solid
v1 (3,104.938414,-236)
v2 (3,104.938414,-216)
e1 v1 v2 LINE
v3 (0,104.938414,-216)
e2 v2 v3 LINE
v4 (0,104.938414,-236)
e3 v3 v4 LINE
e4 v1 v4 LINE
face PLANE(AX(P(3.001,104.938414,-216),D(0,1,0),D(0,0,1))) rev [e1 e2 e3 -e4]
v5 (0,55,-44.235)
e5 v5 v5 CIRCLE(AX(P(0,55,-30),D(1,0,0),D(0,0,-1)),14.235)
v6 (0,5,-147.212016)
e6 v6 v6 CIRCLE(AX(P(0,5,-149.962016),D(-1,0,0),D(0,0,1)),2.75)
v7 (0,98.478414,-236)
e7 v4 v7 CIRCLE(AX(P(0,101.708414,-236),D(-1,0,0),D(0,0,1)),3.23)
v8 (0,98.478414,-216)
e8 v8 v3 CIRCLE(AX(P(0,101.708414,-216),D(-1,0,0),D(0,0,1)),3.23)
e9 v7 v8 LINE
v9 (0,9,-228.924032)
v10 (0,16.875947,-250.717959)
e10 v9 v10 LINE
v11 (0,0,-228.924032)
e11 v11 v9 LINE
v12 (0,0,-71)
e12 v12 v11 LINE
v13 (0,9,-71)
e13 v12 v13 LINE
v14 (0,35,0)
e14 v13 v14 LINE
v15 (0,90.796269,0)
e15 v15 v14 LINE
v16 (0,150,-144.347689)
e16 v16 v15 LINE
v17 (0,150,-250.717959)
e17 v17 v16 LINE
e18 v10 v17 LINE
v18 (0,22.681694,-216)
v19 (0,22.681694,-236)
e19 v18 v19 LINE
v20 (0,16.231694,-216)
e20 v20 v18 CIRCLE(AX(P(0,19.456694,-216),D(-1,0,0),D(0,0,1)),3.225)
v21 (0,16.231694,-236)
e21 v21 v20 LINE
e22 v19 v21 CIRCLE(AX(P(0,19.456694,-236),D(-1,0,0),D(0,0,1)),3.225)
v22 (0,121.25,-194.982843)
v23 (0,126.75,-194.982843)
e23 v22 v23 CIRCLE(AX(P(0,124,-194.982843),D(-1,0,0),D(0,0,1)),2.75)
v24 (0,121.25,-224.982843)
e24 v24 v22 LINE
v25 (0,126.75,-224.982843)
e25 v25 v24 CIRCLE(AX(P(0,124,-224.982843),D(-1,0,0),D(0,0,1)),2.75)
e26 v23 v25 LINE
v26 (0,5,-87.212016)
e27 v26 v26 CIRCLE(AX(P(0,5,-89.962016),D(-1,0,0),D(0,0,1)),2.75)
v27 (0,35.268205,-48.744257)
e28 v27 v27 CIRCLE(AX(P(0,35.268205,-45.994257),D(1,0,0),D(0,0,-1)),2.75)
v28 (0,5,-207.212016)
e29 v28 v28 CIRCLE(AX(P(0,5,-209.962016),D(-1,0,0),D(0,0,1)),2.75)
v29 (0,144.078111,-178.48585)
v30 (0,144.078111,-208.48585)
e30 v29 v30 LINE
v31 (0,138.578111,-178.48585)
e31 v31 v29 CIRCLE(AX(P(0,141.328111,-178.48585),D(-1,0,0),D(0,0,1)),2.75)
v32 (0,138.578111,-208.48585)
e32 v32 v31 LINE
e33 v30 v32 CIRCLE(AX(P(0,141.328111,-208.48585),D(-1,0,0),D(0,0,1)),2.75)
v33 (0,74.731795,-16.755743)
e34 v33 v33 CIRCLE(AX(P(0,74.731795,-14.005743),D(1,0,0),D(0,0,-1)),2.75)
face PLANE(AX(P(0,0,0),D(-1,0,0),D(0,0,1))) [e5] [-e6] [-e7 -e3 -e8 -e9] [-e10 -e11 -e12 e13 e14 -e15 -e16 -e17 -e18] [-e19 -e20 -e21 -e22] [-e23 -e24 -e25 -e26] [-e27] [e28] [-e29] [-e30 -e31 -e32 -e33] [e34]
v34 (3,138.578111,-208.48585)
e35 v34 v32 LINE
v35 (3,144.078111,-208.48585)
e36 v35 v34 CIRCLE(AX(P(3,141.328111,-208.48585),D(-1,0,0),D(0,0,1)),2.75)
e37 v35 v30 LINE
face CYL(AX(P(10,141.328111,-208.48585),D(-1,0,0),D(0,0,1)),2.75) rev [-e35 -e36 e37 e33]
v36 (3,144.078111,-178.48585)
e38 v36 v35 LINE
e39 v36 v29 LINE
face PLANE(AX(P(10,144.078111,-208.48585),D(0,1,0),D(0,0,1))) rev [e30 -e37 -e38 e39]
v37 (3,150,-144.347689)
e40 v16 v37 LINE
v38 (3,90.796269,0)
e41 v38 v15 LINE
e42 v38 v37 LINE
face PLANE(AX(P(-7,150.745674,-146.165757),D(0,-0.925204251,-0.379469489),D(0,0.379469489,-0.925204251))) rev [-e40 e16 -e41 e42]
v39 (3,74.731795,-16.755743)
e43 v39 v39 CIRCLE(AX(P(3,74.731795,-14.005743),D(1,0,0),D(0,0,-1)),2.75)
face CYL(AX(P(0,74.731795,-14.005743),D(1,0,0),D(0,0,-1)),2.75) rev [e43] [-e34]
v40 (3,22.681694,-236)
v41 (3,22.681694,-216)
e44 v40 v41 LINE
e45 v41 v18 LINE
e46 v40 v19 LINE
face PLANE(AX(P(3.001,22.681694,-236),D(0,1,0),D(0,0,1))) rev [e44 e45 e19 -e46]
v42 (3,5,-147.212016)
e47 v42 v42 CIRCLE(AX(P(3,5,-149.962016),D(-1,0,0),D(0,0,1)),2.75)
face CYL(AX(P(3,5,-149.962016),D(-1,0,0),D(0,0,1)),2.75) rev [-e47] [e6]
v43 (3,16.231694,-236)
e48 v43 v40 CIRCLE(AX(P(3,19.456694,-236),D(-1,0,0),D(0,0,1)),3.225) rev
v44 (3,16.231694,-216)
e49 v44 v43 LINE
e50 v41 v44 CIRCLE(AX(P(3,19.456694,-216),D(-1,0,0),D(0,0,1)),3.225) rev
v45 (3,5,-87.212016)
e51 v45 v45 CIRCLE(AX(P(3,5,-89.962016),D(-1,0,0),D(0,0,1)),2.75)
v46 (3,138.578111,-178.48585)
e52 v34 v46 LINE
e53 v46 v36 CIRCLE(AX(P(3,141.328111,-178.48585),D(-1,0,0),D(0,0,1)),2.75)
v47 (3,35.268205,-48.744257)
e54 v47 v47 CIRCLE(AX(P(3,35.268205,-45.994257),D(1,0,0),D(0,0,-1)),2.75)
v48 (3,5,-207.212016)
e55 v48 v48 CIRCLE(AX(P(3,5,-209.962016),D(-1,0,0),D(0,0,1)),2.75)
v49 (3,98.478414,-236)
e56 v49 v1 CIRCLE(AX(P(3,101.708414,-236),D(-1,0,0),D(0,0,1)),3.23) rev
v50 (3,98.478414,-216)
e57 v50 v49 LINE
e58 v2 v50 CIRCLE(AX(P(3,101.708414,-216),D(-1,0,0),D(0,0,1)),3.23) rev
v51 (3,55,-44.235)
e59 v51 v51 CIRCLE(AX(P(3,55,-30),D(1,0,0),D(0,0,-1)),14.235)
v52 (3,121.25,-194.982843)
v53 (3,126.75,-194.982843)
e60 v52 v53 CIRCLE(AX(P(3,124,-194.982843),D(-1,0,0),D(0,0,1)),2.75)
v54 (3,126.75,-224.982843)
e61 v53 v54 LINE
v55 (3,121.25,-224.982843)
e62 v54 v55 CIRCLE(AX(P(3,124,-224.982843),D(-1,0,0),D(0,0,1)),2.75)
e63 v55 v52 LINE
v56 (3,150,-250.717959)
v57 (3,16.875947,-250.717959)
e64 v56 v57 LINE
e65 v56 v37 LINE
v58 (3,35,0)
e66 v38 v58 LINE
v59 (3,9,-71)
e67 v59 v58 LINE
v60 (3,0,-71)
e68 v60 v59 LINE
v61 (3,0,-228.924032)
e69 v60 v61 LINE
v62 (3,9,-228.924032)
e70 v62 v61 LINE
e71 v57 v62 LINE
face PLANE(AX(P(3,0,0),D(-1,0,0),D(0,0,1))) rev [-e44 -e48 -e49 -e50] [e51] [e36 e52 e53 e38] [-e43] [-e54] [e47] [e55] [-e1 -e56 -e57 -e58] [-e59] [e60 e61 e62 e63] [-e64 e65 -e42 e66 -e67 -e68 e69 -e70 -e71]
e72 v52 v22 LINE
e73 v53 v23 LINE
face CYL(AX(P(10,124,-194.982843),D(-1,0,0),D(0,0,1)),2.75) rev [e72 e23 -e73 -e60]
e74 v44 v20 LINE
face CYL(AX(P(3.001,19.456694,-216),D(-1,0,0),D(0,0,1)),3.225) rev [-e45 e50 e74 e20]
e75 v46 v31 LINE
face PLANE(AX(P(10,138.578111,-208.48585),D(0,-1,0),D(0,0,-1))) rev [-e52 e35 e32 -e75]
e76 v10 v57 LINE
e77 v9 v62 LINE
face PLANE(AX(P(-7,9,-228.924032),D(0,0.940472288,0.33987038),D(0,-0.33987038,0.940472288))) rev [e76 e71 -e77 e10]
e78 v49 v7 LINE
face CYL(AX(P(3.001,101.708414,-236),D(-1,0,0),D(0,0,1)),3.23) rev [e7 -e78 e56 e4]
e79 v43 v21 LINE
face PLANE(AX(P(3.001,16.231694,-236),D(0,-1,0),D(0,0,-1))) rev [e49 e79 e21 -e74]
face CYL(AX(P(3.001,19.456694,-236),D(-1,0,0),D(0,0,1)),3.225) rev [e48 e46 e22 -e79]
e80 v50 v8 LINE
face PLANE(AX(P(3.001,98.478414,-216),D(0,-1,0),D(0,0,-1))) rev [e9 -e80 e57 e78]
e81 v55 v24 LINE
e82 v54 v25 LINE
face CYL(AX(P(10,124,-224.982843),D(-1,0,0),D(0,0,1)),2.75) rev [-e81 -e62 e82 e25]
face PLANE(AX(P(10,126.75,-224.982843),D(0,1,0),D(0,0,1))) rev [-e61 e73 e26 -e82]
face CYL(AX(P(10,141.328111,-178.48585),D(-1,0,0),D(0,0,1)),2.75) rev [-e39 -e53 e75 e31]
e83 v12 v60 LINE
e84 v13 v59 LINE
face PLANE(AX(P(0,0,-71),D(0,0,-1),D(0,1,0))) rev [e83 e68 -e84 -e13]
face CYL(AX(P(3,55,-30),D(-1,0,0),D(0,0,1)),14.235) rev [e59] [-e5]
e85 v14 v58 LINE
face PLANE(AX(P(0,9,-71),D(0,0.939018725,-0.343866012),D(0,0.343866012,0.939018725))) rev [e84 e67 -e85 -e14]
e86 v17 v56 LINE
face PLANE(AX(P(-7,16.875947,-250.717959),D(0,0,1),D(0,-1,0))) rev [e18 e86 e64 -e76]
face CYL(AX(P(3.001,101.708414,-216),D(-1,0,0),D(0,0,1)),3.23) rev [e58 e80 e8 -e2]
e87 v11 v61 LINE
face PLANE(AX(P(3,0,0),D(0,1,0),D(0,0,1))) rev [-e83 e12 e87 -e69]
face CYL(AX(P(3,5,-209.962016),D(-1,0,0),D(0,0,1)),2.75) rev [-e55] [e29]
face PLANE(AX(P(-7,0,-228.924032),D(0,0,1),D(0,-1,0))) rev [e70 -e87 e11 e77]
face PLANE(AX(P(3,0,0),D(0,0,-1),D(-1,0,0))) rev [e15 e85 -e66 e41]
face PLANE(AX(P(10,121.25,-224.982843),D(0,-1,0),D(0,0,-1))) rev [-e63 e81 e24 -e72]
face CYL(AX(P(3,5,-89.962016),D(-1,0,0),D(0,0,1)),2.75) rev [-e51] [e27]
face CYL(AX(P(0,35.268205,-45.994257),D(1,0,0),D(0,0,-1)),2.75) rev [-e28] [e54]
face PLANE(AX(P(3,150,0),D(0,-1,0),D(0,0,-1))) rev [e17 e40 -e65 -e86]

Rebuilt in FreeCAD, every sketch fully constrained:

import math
import FreeCAD as App
import Part
import Sketcher

V = App.Vector

doc = App.newDocument("Part")
body = doc.addObject("PartDesign::Body", "Body")

sketch1 = body.newObject("Sketcher::SketchObject", "Sketch")
sketch1.AttachmentSupport = (doc.getObject("YZ_Plane"), [""])
sketch1.MapMode = "FlatFace"
sketch1.addGeometry(Part.LineSegment(V(150, 0, 0), V(0, 0, 0)), False)
sketch1.addGeometry(Part.LineSegment(V(0, 0, 0), V(0, -300, 0)), False)
sketch1.addGeometry(Part.LineSegment(V(0, -300, 0), V(150, -300, 0)), False)
sketch1.addGeometry(Part.LineSegment(V(150, -300, 0), V(150, 0, 0)), False)
sketch1.addGeometry(Part.Circle(V(55, -30, 0), V(0, 0, 1), 14.235), False)
sketch1.addConstraint(Sketcher.Constraint("Coincident", 0, 2, 1, 1))
sketch1.addConstraint(Sketcher.Constraint("Coincident", 1, 2, 2, 1))
sketch1.addConstraint(Sketcher.Constraint("Coincident", 2, 2, 3, 1))
sketch1.addConstraint(Sketcher.Constraint("Coincident", 3, 2, 0, 1))
sketch1.addConstraint(Sketcher.Constraint("Horizontal", 0))
sketch1.addConstraint(Sketcher.Constraint("Vertical", 1))
sketch1.addConstraint(Sketcher.Constraint("Horizontal", 2))
sketch1.addConstraint(Sketcher.Constraint("Vertical", 3))
sketch1.addConstraint(Sketcher.Constraint("Coincident", 0, 2, -1, 1))
sketch1.addConstraint(Sketcher.Constraint("Diameter", 4, 28.47))
sketch1.addConstraint(Sketcher.Constraint("DistanceX", 0, 2, 0, 1, 150.0))
sketch1.addConstraint(Sketcher.Constraint("DistanceY", 1, 2, 1, 1, 300.0))
sketch1.addConstraint(Sketcher.Constraint("DistanceX", -1, 1, 4, 3, 55.0))
sketch1.addConstraint(Sketcher.Constraint("DistanceY", 4, 3, -1, 1, 30.0))
pad1 = body.newObject("PartDesign::Pad", "Pad")
pad1.Profile = sketch1
pad1.Length = 3

sketch2 = body.newObject("Sketcher::SketchObject", "Sketch001")
sketch2.AttachmentSupport = (doc.getObject("YZ_Plane"), [""])
sketch2.MapMode = "FlatFace"
sketch2.addGeometry(Part.Circle(V(110, -10, 0), V(0, 0, 1), 3.225), False)
sketch2.addConstraint(Sketcher.Constraint("Diameter", 0, 6.45))
sketch2.addConstraint(Sketcher.Constraint("DistanceX", -1, 1, 0, 3, 110.0))
sketch2.addConstraint(Sketcher.Constraint("DistanceY", 0, 3, -1, 1, 10.0))
pocket1 = body.newObject("PartDesign::Pocket", "Pocket")
pocket1.Profile = sketch2
pocket1.Type = "UpToFirst"
pocket1.Reversed = True

sketch3 = body.newObject("Sketcher::SketchObject", "Sketch002")
sketch3.AttachmentSupport = (doc.getObject("YZ_Plane"), [""])
sketch3.MapMode = "FlatFace"
sketch3.addGeometry(Part.LineSegment(V(98.478414, -236, 0), V(98.478414, -216, 0)), False)
sketch3.addGeometry(Part.ArcOfCircle(Part.Circle(V(101.708414, -216, 0), V(0, 0, 1), 3.23), math.radians(0), math.radians(180)), False)
sketch3.addGeometry(Part.LineSegment(V(104.938414, -216, 0), V(104.938414, -236, 0)), False)
sketch3.addGeometry(Part.ArcOfCircle(Part.Circle(V(101.708414, -236, 0), V(0, 0, 1), 3.23), math.radians(180), math.radians(360)), False)
sketch3.addConstraint(Sketcher.Constraint("Tangent", 0, 2, 1, 2))
sketch3.addConstraint(Sketcher.Constraint("Tangent", 1, 1, 2, 1))
sketch3.addConstraint(Sketcher.Constraint("Tangent", 2, 2, 3, 2))
sketch3.addConstraint(Sketcher.Constraint("Tangent", 3, 1, 0, 1))
sketch3.addConstraint(Sketcher.Constraint("Vertical", 0))
sketch3.addConstraint(Sketcher.Constraint("Vertical", 2))
sketch3.addConstraint(Sketcher.Constraint("DistanceY", 0, 1, 0, 2, 20.0))
sketch3.addConstraint(Sketcher.Constraint("Radius", 1, 3.23))
sketch3.addConstraint(Sketcher.Constraint("DistanceY", 1, 3, -1, 1, 216.0))
sketch3.addConstraint(Sketcher.Constraint("DistanceX", -1, 1, 1, 3, 101.708414))
pocket2 = body.newObject("PartDesign::Pocket", "Pocket001")
pocket2.Profile = sketch3
pocket2.Type = "UpToFirst"
pocket2.Reversed = True

sketch4 = body.newObject("Sketcher::SketchObject", "Sketch003")
sketch4.AttachmentSupport = (doc.getObject("YZ_Plane"), [""])
sketch4.MapMode = "FlatFace"
sketch4.addGeometry(Part.LineSegment(V(22.681694, -216, 0), V(22.681694, -236, 0)), False)
sketch4.addGeometry(Part.ArcOfCircle(Part.Circle(V(19.456694, -236, 0), V(0, 0, 1), 3.225), math.radians(180), math.radians(360)), False)
sketch4.addGeometry(Part.LineSegment(V(16.231694, -236, 0), V(16.231694, -216, 0)), False)
sketch4.addGeometry(Part.ArcOfCircle(Part.Circle(V(19.456694, -216, 0), V(0, 0, 1), 3.225), math.radians(0), math.radians(180)), False)
sketch4.addConstraint(Sketcher.Constraint("Tangent", 0, 2, 1, 2))
sketch4.addConstraint(Sketcher.Constraint("Tangent", 1, 1, 2, 1))
sketch4.addConstraint(Sketcher.Constraint("Tangent", 2, 2, 3, 2))
sketch4.addConstraint(Sketcher.Constraint("Tangent", 3, 1, 0, 1))
sketch4.addConstraint(Sketcher.Constraint("Vertical", 0))
sketch4.addConstraint(Sketcher.Constraint("Vertical", 2))
sketch4.addConstraint(Sketcher.Constraint("DistanceY", 0, 2, 0, 1, 20.0))
sketch4.addConstraint(Sketcher.Constraint("DistanceY", 1, 3, -1, 1, 236.0))
sketch4.addConstraint(Sketcher.Constraint("Radius", 1, 3.225))
sketch4.addConstraint(Sketcher.Constraint("DistanceX", -1, 1, 1, 3, 19.456694))
pocket3 = body.newObject("PartDesign::Pocket", "Pocket002")
pocket3.Profile = sketch4
pocket3.Type = "UpToFirst"
pocket3.Reversed = True

sketch5 = body.newObject("Sketcher::SketchObject", "Sketch004")
sketch5.AttachmentSupport = (doc.getObject("YZ_Plane"), [""])
sketch5.MapMode = "FlatFace"
sketch5.AttachmentOffset = App.Placement(V(0, 0, 3), App.Rotation())
sketch5.addGeometry(Part.Circle(V(74.731795, -14.005743, 0), V(0, 0, 1), 2.75), False)
sketch5.addGeometry(Part.Circle(V(35.268205, -45.994257, 0), V(0, 0, 1), 2.75), False)
sketch5.addConstraint(Sketcher.Constraint("Equal", 0, 1))
sketch5.addConstraint(Sketcher.Constraint("Diameter", 0, 5.5))
sketch5.addConstraint(Sketcher.Constraint("DistanceX", 1, 3, 0, 3, 39.463591))
sketch5.addConstraint(Sketcher.Constraint("DistanceX", -1, 1, 0, 3, 74.731795))
sketch5.addConstraint(Sketcher.Constraint("DistanceY", 0, 3, -1, 1, 14.005743))
sketch5.addConstraint(Sketcher.Constraint("DistanceY", 1, 3, -1, 1, 45.994257))
pocket4 = body.newObject("PartDesign::Pocket", "Pocket003")
pocket4.Profile = sketch5
pocket4.Type = "ThroughAll"

sketch6 = body.newObject("Sketcher::SketchObject", "Sketch005")
sketch6.AttachmentSupport = (doc.getObject("YZ_Plane"), [""])
sketch6.MapMode = "FlatFace"
sketch6.AttachmentOffset = App.Placement(V(0, 0, 3), App.Rotation())
sketch6.addGeometry(Part.LineSegment(V(9, -71, 0), V(35, 0, 0)), False)
sketch6.addGeometry(Part.LineSegment(V(35, 0, 0), V(0, 0, 0)), False)
sketch6.addGeometry(Part.LineSegment(V(0, 0, 0), V(0, -71, 0)), False)
sketch6.addGeometry(Part.LineSegment(V(0, -71, 0), V(9, -71, 0)), False)
sketch6.addConstraint(Sketcher.Constraint("Coincident", 0, 2, 1, 1))
sketch6.addConstraint(Sketcher.Constraint("Coincident", 1, 2, 2, 1))
sketch6.addConstraint(Sketcher.Constraint("Coincident", 2, 2, 3, 1))
sketch6.addConstraint(Sketcher.Constraint("Coincident", 3, 2, 0, 1))
sketch6.addConstraint(Sketcher.Constraint("Horizontal", 1))
sketch6.addConstraint(Sketcher.Constraint("Vertical", 2))
sketch6.addConstraint(Sketcher.Constraint("Horizontal", 3))
sketch6.addConstraint(Sketcher.Constraint("Coincident", 1, 2, -1, 1))
sketch6.addConstraint(Sketcher.Constraint("DistanceX", 1, 2, 1, 1, 35.0))
sketch6.addConstraint(Sketcher.Constraint("DistanceX", 3, 1, 3, 2, 9.0))
sketch6.addConstraint(Sketcher.Constraint("DistanceY", 2, 2, 2, 1, 71.0))
pocket5 = body.newObject("PartDesign::Pocket", "Pocket004")
pocket5.Profile = sketch6
pocket5.Type = "ThroughAll"

sketch7 = body.newObject("Sketcher::SketchObject", "Sketch006")
sketch7.AttachmentSupport = (doc.getObject("YZ_Plane"), [""])
sketch7.MapMode = "FlatFace"
sketch7.AttachmentOffset = App.Placement(V(0, 0, 3), App.Rotation())
sketch7.addGeometry(Part.LineSegment(V(16.875947, -250.717959, 0), V(9, -228.924032, 0)), False)
sketch7.addGeometry(Part.LineSegment(V(9, -228.924032, 0), V(0, -228.924032, 0)), False)
sketch7.addGeometry(Part.LineSegment(V(0, -228.924032, 0), V(-2.829604, -312.660421, 0)), False)
sketch7.addGeometry(Part.LineSegment(V(-2.829604, -312.660421, 0), V(150, -312.660421, 0)), False)
sketch7.addGeometry(Part.LineSegment(V(150, -312.660421, 0), V(150, -250.717959, 0)), False)
sketch7.addGeometry(Part.LineSegment(V(150, -250.717959, 0), V(16.875947, -250.717959, 0)), False)
sketch7.addConstraint(Sketcher.Constraint("Coincident", 0, 2, 1, 1))
sketch7.addConstraint(Sketcher.Constraint("Coincident", 1, 2, 2, 1))
sketch7.addConstraint(Sketcher.Constraint("Coincident", 2, 2, 3, 1))
sketch7.addConstraint(Sketcher.Constraint("Coincident", 3, 2, 4, 1))
sketch7.addConstraint(Sketcher.Constraint("Coincident", 4, 2, 5, 1))
sketch7.addConstraint(Sketcher.Constraint("Coincident", 5, 2, 0, 1))
sketch7.addConstraint(Sketcher.Constraint("Horizontal", 1))
sketch7.addConstraint(Sketcher.Constraint("Horizontal", 3))
sketch7.addConstraint(Sketcher.Constraint("Vertical", 4))
sketch7.addConstraint(Sketcher.Constraint("Horizontal", 5))
sketch7.addConstraint(Sketcher.Constraint("PointOnObject", 1, 2, -2))
sketch7.addConstraint(Sketcher.Constraint("DistanceX", 1, 2, 1, 1, 9.0))
sketch7.addConstraint(Sketcher.Constraint("DistanceX", -1, 1, 3, 2, 150.0))
sketch7.addConstraint(Sketcher.Constraint("DistanceX", 3, 1, 3, 2, 152.829604))
sketch7.addConstraint(Sketcher.Constraint("DistanceX", 5, 2, 5, 1, 133.124053))
sketch7.addConstraint(Sketcher.Constraint("DistanceY", 4, 1, 4, 2, 61.942462))
sketch7.addConstraint(Sketcher.Constraint("DistanceY", 2, 2, -1, 1, 312.660421))
sketch7.addConstraint(Sketcher.Constraint("DistanceY", 2, 2, 1, 2, 83.736389))
pocket6 = body.newObject("PartDesign::Pocket", "Pocket005")
pocket6.Profile = sketch7
pocket6.Length = 10

sketch8 = body.newObject("Sketcher::SketchObject", "Sketch007")
sketch8.AttachmentSupport = (doc.getObject("YZ_Plane"), [""])
sketch8.MapMode = "FlatFace"
sketch8.AttachmentOffset = App.Placement(V(0, 0, 3), App.Rotation())
sketch8.addGeometry(Part.LineSegment(V(90.796269, 0, 0), V(150.745674, -146.165757, 0)), False)
sketch8.addGeometry(Part.LineSegment(V(150.745674, -146.165757, 0), V(170.167052, 32.553666, 0)), False)
sketch8.addGeometry(Part.LineSegment(V(170.167052, 32.553666, 0), V(90.796269, 0, 0)), False)
sketch8.addConstraint(Sketcher.Constraint("Coincident", 0, 2, 1, 1))
sketch8.addConstraint(Sketcher.Constraint("Coincident", 1, 2, 2, 1))
sketch8.addConstraint(Sketcher.Constraint("Coincident", 2, 2, 0, 1))
sketch8.addConstraint(Sketcher.Constraint("PointOnObject", 2, 2, -1))
sketch8.addConstraint(Sketcher.Constraint("Perpendicular", 0, 2))
sketch8.addConstraint(Sketcher.Constraint("Distance", 0, 157.98215))
sketch8.addConstraint(Sketcher.Constraint("Distance", 2, 85.787309))
sketch8.addConstraint(Sketcher.Constraint("DistanceX", -1, 1, 1, 2, 170.167052))
sketch8.addConstraint(Sketcher.Constraint("DistanceX", -1, 1, 2, 2, 90.796269))
pocket7 = body.newObject("PartDesign::Pocket", "Pocket006")
pocket7.Profile = sketch8
pocket7.Length = 10

sketch9 = body.newObject("Sketcher::SketchObject", "Sketch008")
sketch9.AttachmentSupport = (doc.getObject("YZ_Plane"), [""])
sketch9.MapMode = "FlatFace"
sketch9.addGeometry(Part.Circle(V(5, -209.962016, 0), V(0, 0, 1), 2.75), False)
sketch9.addGeometry(Part.Circle(V(5, -149.962016, 0), V(0, 0, 1), 2.75), False)
sketch9.addGeometry(Part.Circle(V(5, -89.962016, 0), V(0, 0, 1), 2.75), False)
sketch9.addConstraint(Sketcher.Constraint("Equal", 0, 1))
sketch9.addConstraint(Sketcher.Constraint("Equal", 1, 2))
sketch9.addConstraint(Sketcher.Constraint("Vertical", 0, 3, 1, 3))
sketch9.addConstraint(Sketcher.Constraint("Vertical", 1, 3, 2, 3))
sketch9.addConstraint(Sketcher.Constraint("Diameter", 0, 5.5))
sketch9.addConstraint(Sketcher.Constraint("DistanceX", -1, 1, 0, 3, 5.0))
sketch9.addConstraint(Sketcher.Constraint("DistanceY", 0, 3, 1, 3, 60.0))
sketch9.addConstraint(Sketcher.Constraint("DistanceY", 1, 3, 2, 3, 60.0))
sketch9.addConstraint(Sketcher.Constraint("DistanceY", 0, 3, -1, 1, 209.962016))
pocket8 = body.newObject("PartDesign::Pocket", "Pocket007")
pocket8.Profile = sketch9
pocket8.Type = "ThroughAll"
pocket8.Reversed = True

sketch10 = body.newObject("Sketcher::SketchObject", "Sketch009")
sketch10.AttachmentSupport = (doc.getObject("YZ_Plane"), [""])
sketch10.MapMode = "FlatFace"
sketch10.addGeometry(Part.LineSegment(V(144.078111, -178.48585, 0), V(144.078111, -208.48585, 0)), False)
sketch10.addGeometry(Part.ArcOfCircle(Part.Circle(V(141.328111, -208.48585, 0), V(0, 0, 1), 2.75), math.radians(180), math.radians(360)), False)
sketch10.addGeometry(Part.LineSegment(V(138.578111, -208.48585, 0), V(138.578111, -178.48585, 0)), False)
sketch10.addGeometry(Part.ArcOfCircle(Part.Circle(V(141.328111, -178.48585, 0), V(0, 0, 1), 2.75), math.radians(0), math.radians(180)), False)
sketch10.addGeometry(Part.LineSegment(V(126.75, -194.982843, 0), V(126.75, -224.982843, 0)), False)
sketch10.addGeometry(Part.ArcOfCircle(Part.Circle(V(124, -224.982843, 0), V(0, 0, 1), 2.75), math.radians(180), math.radians(360)), False)
sketch10.addGeometry(Part.LineSegment(V(121.25, -224.982843, 0), V(121.25, -194.982843, 0)), False)
sketch10.addGeometry(Part.ArcOfCircle(Part.Circle(V(124, -194.982843, 0), V(0, 0, 1), 2.75), math.radians(0), math.radians(180)), False)
sketch10.addConstraint(Sketcher.Constraint("Tangent", 0, 2, 1, 2))
sketch10.addConstraint(Sketcher.Constraint("Tangent", 1, 1, 2, 1))
sketch10.addConstraint(Sketcher.Constraint("Tangent", 2, 2, 3, 2))
sketch10.addConstraint(Sketcher.Constraint("Tangent", 3, 1, 0, 1))
sketch10.addConstraint(Sketcher.Constraint("Tangent", 4, 2, 5, 2))
sketch10.addConstraint(Sketcher.Constraint("Tangent", 5, 1, 6, 1))
sketch10.addConstraint(Sketcher.Constraint("Tangent", 6, 2, 7, 2))
sketch10.addConstraint(Sketcher.Constraint("Tangent", 7, 1, 4, 1))
sketch10.addConstraint(Sketcher.Constraint("Vertical", 0))
sketch10.addConstraint(Sketcher.Constraint("Vertical", 2))
sketch10.addConstraint(Sketcher.Constraint("Vertical", 4))
sketch10.addConstraint(Sketcher.Constraint("Vertical", 6))
sketch10.addConstraint(Sketcher.Constraint("Equal", 3, 5))
sketch10.addConstraint(Sketcher.Constraint("Equal", 2, 4))
sketch10.addConstraint(Sketcher.Constraint("DistanceY", 0, 2, 0, 1, 30.0))
sketch10.addConstraint(Sketcher.Constraint("Radius", 1, 2.75))
sketch10.addConstraint(Sketcher.Constraint("DistanceX", -1, 1, 5, 3, 124.0))
sketch10.addConstraint(Sketcher.Constraint("DistanceX", -1, 1, 1, 3, 141.328111))
sketch10.addConstraint(Sketcher.Constraint("DistanceY", 1, 3, -1, 1, 208.48585))
sketch10.addConstraint(Sketcher.Constraint("DistanceY", 5, 3, -1, 1, 224.982843))
pocket9 = body.newObject("PartDesign::Pocket", "Pocket008")
pocket9.Profile = sketch10
pocket9.Length = 10
pocket9.Reversed = True

doc.recompute()
